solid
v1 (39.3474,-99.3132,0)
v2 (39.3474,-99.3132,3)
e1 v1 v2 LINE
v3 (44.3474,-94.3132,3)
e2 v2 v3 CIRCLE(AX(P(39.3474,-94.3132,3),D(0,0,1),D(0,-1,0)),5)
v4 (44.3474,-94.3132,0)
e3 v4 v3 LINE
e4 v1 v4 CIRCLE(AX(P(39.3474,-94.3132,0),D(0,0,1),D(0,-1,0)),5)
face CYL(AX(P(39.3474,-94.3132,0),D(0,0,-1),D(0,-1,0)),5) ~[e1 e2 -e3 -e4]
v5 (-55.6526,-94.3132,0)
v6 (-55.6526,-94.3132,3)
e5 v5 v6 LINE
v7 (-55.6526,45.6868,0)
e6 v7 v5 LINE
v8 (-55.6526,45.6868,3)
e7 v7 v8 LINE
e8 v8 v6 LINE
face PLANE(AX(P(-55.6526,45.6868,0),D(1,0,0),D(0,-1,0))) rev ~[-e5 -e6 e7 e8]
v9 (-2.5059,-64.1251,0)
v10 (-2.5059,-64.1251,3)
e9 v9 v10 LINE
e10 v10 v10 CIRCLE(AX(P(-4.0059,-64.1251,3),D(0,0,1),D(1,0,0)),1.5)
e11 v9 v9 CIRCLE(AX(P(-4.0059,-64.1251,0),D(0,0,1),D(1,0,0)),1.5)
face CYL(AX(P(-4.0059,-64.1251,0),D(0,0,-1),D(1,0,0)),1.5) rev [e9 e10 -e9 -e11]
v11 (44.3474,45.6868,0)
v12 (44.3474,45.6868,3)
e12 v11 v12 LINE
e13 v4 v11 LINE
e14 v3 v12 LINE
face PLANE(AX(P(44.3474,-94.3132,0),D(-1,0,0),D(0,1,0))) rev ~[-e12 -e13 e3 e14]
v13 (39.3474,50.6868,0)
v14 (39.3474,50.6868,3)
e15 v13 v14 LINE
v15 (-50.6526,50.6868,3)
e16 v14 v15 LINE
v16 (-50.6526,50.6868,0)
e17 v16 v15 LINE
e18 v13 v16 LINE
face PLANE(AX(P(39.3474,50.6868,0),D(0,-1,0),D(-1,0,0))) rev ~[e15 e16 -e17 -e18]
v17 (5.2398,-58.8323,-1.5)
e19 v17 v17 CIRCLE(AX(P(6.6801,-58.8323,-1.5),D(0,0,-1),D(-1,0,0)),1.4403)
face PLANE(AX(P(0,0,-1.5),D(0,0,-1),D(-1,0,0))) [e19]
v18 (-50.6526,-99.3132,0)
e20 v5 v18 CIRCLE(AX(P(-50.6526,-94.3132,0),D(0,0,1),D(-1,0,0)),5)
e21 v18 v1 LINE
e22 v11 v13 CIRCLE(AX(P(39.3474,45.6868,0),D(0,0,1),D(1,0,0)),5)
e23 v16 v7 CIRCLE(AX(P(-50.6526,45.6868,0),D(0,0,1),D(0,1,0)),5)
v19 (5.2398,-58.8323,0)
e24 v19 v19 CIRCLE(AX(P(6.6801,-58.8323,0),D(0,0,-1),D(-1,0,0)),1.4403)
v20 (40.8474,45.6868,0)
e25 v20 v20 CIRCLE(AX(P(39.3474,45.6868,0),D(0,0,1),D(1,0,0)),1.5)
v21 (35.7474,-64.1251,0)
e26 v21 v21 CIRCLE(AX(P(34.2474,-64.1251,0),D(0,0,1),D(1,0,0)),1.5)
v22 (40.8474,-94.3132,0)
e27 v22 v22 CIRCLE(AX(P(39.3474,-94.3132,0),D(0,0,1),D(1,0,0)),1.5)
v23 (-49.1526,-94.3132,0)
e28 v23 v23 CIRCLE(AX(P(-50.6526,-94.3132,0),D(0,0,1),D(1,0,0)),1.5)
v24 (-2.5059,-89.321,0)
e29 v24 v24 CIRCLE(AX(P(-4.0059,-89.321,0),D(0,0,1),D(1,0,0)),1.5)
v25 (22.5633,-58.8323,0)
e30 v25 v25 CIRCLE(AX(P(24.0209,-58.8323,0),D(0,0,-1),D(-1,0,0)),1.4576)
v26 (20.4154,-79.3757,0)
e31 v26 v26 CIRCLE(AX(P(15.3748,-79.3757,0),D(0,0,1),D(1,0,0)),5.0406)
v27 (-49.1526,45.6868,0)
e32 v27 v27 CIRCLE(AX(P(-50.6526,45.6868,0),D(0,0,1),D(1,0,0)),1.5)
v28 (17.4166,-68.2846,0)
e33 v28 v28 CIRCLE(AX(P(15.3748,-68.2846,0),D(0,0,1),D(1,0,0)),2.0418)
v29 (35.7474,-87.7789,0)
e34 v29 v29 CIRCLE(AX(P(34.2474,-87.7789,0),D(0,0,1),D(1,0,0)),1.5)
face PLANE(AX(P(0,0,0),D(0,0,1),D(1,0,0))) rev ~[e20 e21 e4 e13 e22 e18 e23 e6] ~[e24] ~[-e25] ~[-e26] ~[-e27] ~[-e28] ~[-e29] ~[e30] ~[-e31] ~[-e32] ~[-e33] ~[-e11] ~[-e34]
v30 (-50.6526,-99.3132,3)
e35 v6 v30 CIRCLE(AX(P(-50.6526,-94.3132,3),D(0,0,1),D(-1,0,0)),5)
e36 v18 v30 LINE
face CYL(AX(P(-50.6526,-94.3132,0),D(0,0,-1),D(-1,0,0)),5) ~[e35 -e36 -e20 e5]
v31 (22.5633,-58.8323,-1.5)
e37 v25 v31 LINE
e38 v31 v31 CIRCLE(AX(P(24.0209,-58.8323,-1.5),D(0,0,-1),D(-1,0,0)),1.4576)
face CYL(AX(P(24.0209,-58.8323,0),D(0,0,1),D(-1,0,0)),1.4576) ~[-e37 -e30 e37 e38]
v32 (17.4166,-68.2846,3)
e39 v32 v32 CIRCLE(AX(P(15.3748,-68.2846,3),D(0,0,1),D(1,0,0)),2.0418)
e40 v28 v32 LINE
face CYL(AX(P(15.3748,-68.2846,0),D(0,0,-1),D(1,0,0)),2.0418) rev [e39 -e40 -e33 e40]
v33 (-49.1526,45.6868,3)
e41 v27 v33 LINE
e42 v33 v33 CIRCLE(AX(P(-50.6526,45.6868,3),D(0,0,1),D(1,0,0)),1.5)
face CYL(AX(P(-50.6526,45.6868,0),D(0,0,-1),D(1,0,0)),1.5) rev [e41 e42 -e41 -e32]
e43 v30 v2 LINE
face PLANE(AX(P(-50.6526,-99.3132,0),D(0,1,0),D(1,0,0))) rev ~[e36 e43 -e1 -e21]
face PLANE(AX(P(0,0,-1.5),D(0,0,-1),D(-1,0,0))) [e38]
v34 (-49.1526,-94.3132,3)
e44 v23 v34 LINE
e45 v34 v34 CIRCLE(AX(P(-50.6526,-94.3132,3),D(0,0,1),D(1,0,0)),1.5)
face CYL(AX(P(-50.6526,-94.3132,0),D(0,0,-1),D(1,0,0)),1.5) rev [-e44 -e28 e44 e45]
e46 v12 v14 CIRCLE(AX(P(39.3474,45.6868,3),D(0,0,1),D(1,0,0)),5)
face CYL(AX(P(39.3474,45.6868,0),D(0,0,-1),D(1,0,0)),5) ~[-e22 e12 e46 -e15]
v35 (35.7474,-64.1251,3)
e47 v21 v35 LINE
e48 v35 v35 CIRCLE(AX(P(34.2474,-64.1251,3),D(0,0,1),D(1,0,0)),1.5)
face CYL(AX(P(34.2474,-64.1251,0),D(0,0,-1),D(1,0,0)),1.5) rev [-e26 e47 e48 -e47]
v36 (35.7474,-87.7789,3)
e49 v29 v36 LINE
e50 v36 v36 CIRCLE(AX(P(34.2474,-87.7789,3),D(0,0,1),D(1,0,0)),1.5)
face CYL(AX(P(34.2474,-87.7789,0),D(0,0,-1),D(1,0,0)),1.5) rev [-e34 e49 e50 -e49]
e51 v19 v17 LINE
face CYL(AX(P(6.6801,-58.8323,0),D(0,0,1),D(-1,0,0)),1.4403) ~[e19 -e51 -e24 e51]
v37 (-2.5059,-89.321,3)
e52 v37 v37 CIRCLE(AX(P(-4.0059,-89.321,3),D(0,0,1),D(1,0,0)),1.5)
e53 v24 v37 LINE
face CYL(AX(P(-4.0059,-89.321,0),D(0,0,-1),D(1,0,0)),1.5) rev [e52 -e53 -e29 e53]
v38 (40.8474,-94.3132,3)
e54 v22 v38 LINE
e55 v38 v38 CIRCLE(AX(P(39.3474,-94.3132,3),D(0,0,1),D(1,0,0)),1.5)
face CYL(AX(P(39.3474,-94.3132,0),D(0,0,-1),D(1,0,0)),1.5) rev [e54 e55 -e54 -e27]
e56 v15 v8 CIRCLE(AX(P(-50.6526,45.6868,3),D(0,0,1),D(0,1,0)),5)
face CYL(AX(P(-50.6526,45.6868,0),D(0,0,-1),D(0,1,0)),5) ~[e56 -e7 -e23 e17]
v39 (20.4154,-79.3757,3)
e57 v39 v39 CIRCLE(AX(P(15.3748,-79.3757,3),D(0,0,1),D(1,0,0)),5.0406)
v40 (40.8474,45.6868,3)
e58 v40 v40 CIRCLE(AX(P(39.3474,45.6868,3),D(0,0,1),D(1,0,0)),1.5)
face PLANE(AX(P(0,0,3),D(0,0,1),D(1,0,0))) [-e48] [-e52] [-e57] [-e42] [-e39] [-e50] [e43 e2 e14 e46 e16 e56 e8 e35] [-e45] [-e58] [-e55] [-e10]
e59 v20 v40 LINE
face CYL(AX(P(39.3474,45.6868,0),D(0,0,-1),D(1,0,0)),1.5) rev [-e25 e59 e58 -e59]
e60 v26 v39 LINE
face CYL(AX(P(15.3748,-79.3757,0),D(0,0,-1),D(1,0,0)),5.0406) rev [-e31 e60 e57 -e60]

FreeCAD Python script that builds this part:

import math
import FreeCAD as App
import Part
import Sketcher

doc = App.newDocument("Part")
body = doc.addObject("PartDesign::Body", "Body")

# Sketch on XY plane
sketch1 = doc.addObject("Sketcher::SketchObject", "Sketch")
body.addObject(sketch1)
sketch1.AttachmentSupport = (doc.XY_Plane, [""])
sketch1.MapMode = "FlatFace"
sketch1.addGeometry([
    Part.ArcOfCircle(Part.Circle(App.Vector(39.3, 45.7, 0), App.Vector(0, 0, 1), 5), math.radians(0), math.radians(90)),  # 0
    Part.LineSegment(App.Vector(39.3, 50.7, 0), App.Vector(-50.7, 50.7, 0)),  # 1
    Part.ArcOfCircle(Part.Circle(App.Vector(-50.7, 45.7, 0), App.Vector(0, 0, 1), 5), math.radians(90), math.radians(180)),  # 2
    Part.LineSegment(App.Vector(-55.7, 45.7, 0), App.Vector(-55.7, -94.3, 0)),  # 3
    Part.ArcOfCircle(Part.Circle(App.Vector(-50.7, -94.3, 0), App.Vector(0, 0, 1), 5), math.radians(180), math.radians(270)),  # 4
    Part.LineSegment(App.Vector(-50.7, -99.3, 0), App.Vector(39.3, -99.3, 0)),  # 5
    Part.ArcOfCircle(Part.Circle(App.Vector(39.3, -94.3, 0), App.Vector(0, 0, 1), 5), math.radians(-90), math.radians(0)),  # 6
    Part.LineSegment(App.Vector(44.3, -94.3, 0), App.Vector(44.3, 45.7, 0)),  # 7
    Part.Circle(App.Vector(-50.7, -94.3, 0), App.Vector(0, 0, 1), 1.5),  # 8
    Part.Circle(App.Vector(-4, -89.3, 0), App.Vector(0, 0, 1), 1.5),  # 9
    Part.Circle(App.Vector(-4, -64.1, 0), App.Vector(0, 0, 1), 1.5),  # 10
    Part.Circle(App.Vector(15.4, -79.4, 0), App.Vector(0, 0, 1), 5),  # 11
    Part.Circle(App.Vector(15.4, -68.3, 0), App.Vector(0, 0, 1), 2),  # 12
    Part.Circle(App.Vector(39.3, -94.3, 0), App.Vector(0, 0, 1), 1.5),  # 13
    Part.Circle(App.Vector(34.2, -87.8, 0), App.Vector(0, 0, 1), 1.5),  # 14
    Part.Circle(App.Vector(34.2, -64.1, 0), App.Vector(0, 0, 1), 1.5),  # 15
    Part.Circle(App.Vector(-50.7, 45.7, 0), App.Vector(0, 0, 1), 1.5),  # 16
    Part.Circle(App.Vector(39.3, 45.7, 0), App.Vector(0, 0, 1), 1.5),  # 17
], False)
sketch1.addConstraint([
    Sketcher.Constraint("Tangent", 0, 2, 1, 1),
    Sketcher.Constraint("Tangent", 1, 2, 2, 1),
    Sketcher.Constraint("Tangent", 2, 2, 3, 1),
    Sketcher.Constraint("Tangent", 3, 2, 4, 1),
    Sketcher.Constraint("Tangent", 4, 2, 5, 1),
    Sketcher.Constraint("Tangent", 5, 2, 6, 1),
    Sketcher.Constraint("Tangent", 6, 2, 7, 1),
    Sketcher.Constraint("Tangent", 7, 2, 0, 1),
    Sketcher.Constraint("Horizontal", 1),
    Sketcher.Constraint("Vertical", 3),
    Sketcher.Constraint("Horizontal", 5),
    Sketcher.Constraint("Vertical", 7),
    Sketcher.Constraint("Coincident", 8, 3, 4, 3),
    Sketcher.Constraint("Coincident", 13, 3, 6, 3),
    Sketcher.Constraint("Coincident", 16, 3, 2, 3),
    Sketcher.Constraint("Coincident", 17, 3, 0, 3),
    Sketcher.Constraint("Equal", 0, 2),
    Sketcher.Constraint("Equal", 2, 4),
    Sketcher.Constraint("Equal", 4, 6),
    Sketcher.Constraint("Equal", 8, 9),
    Sketcher.Constraint("Equal", 9, 10),
    Sketcher.Constraint("Equal", 10, 13),
    Sketcher.Constraint("Equal", 13, 14),
    Sketcher.Constraint("Equal", 14, 15),
    Sketcher.Constraint("Equal", 15, 16),
    Sketcher.Constraint("Equal", 16, 17),
    Sketcher.Constraint("Horizontal", 10, 3, 15, 3),
    Sketcher.Constraint("Vertical", 9, 3, 10, 3),
    Sketcher.Constraint("Vertical", 11, 3, 12, 3),
    Sketcher.Constraint("Vertical", 14, 3, 15, 3),
    Sketcher.Constraint("Diameter", 8, 3.0),
    Sketcher.Constraint("Radius", 0, 5.0),
    Sketcher.Constraint("DistanceX", 1, 2, 1, 1, 90.0),
    Sketcher.Constraint("DistanceY", 3, 2, 3, 1, 140.0),
    Sketcher.Constraint("Diameter", 11, 10.0812),
    Sketcher.Constraint("Diameter", 12, 4.0836),
    Sketcher.Constraint("DistanceX", 14, 3, 6, 3, 5.1),
    Sketcher.Constraint("DistanceX", 9, 3, -1, 1, 4.006),
    Sketcher.Constraint("DistanceY", 9, 3, -1, 1, 89.321),
    Sketcher.Constraint("DistanceY", 10, 3, -1, 1, 64.125),
    Sketcher.Constraint("DistanceY", 14, 3, -1, 1, 87.779),
    Sketcher.Constraint("DistanceY", 6, 3, 10, 3, 30.188),
    Sketcher.Constraint("DistanceY", 11, 3, 12, 3, 11.091),
    Sketcher.Constraint("DistanceX", -1, 1, 0, 3, 39.3474),
    Sketcher.Constraint("DistanceX", -1, 1, 11, 3, 15.3748),
    Sketcher.Constraint("DistanceY", 11, 3, -1, 1, 79.3757),
])
pad1 = doc.addObject("PartDesign::Pad", "Pad")
body.addObject(pad1)
pad1.Profile = sketch1
pad1.Length = 3

# Sketch on XY plane
sketch2 = doc.addObject("Sketcher::SketchObject", "Sketch001")
body.addObject(sketch2)
sketch2.AttachmentSupport = (doc.XY_Plane, [""])
sketch2.MapMode = "FlatFace"
sketch2.addGeometry([
    Part.Circle(App.Vector(6.7, -58.8, 0), App.Vector(0, 0, 1), 1.4),
    Part.Circle(App.Vector(24, -58.8, 0), App.Vector(0, 0, 1), 1.5),
], False)
sketch2.addConstraint([
    Sketcher.Constraint("Horizontal", 0, 3, 1, 3),
    Sketcher.Constraint("Diameter", 0, 2.8806),
    Sketcher.Constraint("Diameter", 1, 2.9152),
    Sketcher.Constraint("DistanceX", -1, 1, 0, 3, 6.68),
    Sketcher.Constraint("DistanceX", -1, 1, 1, 3, 24.021),
    Sketcher.Constraint("DistanceY", 0, 3, -1, 1, 58.8323),
])
pad2 = doc.addObject("PartDesign::Pad", "Pad001")
body.addObject(pad2)
pad2.Profile = sketch2
pad2.Length = 1.5
pad2.Reversed = True

doc.recompute()
